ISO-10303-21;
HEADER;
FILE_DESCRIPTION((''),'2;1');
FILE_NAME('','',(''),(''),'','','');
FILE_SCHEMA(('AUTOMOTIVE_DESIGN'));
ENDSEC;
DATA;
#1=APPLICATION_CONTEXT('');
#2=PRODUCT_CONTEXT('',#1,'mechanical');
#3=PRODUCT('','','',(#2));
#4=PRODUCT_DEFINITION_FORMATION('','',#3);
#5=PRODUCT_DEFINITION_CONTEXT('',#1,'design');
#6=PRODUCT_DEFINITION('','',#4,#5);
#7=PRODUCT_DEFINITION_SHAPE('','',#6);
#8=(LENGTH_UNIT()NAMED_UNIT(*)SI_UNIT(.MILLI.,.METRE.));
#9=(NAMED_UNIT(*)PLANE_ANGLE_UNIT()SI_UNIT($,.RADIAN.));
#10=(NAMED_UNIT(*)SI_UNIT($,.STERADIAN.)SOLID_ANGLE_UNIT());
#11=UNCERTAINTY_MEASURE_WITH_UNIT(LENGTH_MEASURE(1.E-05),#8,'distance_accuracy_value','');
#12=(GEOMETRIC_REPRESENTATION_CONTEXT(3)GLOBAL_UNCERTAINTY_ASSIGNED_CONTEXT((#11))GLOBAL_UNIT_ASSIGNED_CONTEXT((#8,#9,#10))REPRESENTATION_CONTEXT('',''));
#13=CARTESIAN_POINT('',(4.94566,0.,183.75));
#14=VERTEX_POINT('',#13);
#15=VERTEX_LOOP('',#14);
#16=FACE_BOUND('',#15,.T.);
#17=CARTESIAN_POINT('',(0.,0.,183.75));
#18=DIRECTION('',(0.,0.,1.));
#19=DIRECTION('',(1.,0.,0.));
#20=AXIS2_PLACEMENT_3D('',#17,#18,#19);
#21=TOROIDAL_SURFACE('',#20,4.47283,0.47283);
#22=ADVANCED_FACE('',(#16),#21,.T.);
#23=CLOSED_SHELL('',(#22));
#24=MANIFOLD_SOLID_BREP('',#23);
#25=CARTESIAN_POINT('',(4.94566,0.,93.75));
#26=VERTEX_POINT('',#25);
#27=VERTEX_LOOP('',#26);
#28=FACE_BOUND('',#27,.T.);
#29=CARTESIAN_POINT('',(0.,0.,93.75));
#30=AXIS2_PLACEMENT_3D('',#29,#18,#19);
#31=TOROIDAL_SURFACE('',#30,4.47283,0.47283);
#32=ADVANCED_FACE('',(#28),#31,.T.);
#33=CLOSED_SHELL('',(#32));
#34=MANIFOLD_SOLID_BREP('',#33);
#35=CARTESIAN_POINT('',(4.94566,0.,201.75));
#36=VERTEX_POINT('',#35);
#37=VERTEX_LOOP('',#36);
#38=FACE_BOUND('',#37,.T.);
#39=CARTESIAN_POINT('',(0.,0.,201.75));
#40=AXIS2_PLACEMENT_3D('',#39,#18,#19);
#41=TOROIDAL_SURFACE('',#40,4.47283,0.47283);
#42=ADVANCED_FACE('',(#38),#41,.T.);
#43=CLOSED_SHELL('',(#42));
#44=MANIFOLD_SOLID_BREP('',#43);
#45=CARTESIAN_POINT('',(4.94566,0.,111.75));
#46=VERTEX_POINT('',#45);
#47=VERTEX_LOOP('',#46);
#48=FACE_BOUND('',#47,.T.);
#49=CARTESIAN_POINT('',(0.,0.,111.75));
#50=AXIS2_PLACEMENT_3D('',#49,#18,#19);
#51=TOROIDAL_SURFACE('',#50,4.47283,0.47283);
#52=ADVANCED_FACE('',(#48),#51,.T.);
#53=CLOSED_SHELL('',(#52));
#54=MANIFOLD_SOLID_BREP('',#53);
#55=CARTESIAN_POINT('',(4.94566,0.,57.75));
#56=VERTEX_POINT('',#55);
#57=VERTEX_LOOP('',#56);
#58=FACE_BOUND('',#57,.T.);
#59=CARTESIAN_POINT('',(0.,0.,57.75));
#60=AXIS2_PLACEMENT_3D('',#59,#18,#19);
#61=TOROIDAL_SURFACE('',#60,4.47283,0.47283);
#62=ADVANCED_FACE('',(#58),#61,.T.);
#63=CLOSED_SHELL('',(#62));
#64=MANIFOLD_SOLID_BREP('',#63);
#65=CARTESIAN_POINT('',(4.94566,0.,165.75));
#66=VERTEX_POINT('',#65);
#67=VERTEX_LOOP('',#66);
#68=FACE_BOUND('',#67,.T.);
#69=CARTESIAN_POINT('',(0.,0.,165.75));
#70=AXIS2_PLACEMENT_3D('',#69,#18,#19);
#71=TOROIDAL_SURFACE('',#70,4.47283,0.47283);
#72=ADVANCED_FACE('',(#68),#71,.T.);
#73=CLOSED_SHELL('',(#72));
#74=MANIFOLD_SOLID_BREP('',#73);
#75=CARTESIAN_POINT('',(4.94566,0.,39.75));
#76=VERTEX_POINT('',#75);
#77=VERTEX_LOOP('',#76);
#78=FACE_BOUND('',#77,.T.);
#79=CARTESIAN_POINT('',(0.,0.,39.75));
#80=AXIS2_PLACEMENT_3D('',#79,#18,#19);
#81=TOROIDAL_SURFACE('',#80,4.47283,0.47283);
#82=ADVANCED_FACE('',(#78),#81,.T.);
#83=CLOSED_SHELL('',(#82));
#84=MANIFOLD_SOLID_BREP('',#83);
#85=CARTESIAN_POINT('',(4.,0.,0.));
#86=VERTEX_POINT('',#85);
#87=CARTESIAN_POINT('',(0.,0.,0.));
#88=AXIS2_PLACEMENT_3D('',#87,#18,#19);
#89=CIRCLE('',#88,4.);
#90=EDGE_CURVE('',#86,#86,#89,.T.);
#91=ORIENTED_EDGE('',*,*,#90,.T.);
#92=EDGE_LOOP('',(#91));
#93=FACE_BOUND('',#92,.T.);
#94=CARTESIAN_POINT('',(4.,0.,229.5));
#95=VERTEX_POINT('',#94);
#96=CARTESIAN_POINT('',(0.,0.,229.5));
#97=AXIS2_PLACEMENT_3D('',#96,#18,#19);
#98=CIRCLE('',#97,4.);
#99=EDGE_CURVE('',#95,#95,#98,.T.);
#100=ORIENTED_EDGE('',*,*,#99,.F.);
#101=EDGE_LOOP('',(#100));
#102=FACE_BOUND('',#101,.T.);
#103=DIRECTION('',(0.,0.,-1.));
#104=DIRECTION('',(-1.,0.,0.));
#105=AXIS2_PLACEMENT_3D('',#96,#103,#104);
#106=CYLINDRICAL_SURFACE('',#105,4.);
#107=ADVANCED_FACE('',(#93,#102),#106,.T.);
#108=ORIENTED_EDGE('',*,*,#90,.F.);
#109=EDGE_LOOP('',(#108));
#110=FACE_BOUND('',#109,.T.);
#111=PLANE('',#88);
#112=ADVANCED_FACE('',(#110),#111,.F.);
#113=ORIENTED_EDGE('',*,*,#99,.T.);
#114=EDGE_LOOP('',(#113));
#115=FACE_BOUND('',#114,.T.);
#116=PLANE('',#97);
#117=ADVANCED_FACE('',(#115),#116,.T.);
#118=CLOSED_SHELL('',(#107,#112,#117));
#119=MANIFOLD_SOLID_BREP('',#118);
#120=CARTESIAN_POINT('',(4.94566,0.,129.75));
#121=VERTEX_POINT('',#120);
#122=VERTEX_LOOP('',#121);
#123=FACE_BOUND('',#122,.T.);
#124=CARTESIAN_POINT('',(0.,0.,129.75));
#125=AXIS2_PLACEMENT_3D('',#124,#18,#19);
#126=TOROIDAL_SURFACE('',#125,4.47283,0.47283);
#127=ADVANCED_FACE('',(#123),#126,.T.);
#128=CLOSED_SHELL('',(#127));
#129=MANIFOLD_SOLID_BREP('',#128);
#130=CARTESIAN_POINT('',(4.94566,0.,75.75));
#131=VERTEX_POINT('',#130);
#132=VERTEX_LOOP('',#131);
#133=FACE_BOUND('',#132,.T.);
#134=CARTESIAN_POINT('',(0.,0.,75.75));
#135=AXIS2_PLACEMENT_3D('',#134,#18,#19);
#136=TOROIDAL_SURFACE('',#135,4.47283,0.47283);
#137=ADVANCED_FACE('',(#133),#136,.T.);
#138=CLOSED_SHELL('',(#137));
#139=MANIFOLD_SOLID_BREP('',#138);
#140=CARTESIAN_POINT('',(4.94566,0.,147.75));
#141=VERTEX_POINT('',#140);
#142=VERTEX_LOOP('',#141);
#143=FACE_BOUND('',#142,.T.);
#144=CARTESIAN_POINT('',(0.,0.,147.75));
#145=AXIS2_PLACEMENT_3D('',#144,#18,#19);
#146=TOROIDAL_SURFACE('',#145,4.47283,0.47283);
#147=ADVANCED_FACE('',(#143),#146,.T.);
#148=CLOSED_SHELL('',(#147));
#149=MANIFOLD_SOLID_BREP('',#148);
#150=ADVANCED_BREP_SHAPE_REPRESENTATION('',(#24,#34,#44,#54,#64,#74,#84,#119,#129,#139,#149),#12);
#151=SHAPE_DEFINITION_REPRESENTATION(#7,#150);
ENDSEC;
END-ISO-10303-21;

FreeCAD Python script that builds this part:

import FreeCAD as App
import Part
import Sketcher

V = App.Vector

doc = App.newDocument("Part")
params = doc.addObject("Spreadsheet::Sheet", "Params")
for row, (alias, value) in enumerate([
    ("sketch1_diameter", "8 mm"),
    ("pad1_length", "229.5 mm"),
    ("revolution_angle", "360 deg"),
], start=1):
    params.set(f"A{row}", alias)
    params.set(f"B{row}", "=" + value)
    params.setAlias(f"B{row}", alias)

body = doc.addObject("PartDesign::Body", "Body")

# Sketch on XY plane
sketch1 = body.newObject("Sketcher::SketchObject", "Sketch")
sketch1.AttachmentSupport = (doc.getObject("XY_Plane"), [""])
sketch1.MapMode = "FlatFace"
sketch1.addGeometry(Part.Circle(V(0, 0, 0), V(0, 0, 1), 4), False)
sketch1.addConstraint([
    Sketcher.Constraint("Coincident", 0, 3, -1, 1),
    Sketcher.Constraint("Diameter", 0, 8.0),
])
sketch1.setExpression("Constraints[1]", "Params.sketch1_diameter")
pad1 = body.newObject("PartDesign::Pad", "Pad")
pad1.Profile = sketch1
pad1.setExpression("Length", "Params.pad1_length")
body2 = doc.addObject("PartDesign::Body", "Body001")
body2.AllowCompound = True

# Sketch on XZ plane
sketch2 = body2.newObject("Sketcher::SketchObject", "Sketch001")
sketch2.AttachmentSupport = (doc.getObject("XZ_Plane001"), [""])
sketch2.MapMode = "FlatFace"
sketch2.addGeometry([
    Part.Circle(V(4.47283, 201.75, 0), V(0, 0, 1), 0.47283),  # 0
    Part.Circle(V(4.47283, 183.75, 0), V(0, 0, 1), 0.47283),  # 1
    Part.Circle(V(4.47283, 165.75, 0), V(0, 0, 1), 0.47283),  # 2
    Part.Circle(V(4.47283, 147.75, 0), V(0, 0, 1), 0.47283),  # 3
    Part.Circle(V(4.47283, 129.75, 0), V(0, 0, 1), 0.47283),  # 4
    Part.Circle(V(4.47283, 111.75, 0), V(0, 0, 1), 0.47283),  # 5
    Part.Circle(V(4.47283, 93.75, 0), V(0, 0, 1), 0.47283),  # 6
    Part.Circle(V(4.47283, 75.75, 0), V(0, 0, 1), 0.47283),  # 7
    Part.Circle(V(4.47283, 57.75, 0), V(0, 0, 1), 0.47283),  # 8
    Part.Circle(V(4.47283, 39.75, 0), V(0, 0, 1), 0.47283),  # 9
], False)
sketch2.addConstraint([
    Sketcher.Constraint("Equal", 0, 1),
    Sketcher.Constraint("Equal", 1, 2),
    Sketcher.Constraint("Equal", 2, 3),
    Sketcher.Constraint("Equal", 3, 4),
    Sketcher.Constraint("Equal", 4, 5),
    Sketcher.Constraint("Equal", 5, 6),
    Sketcher.Constraint("Equal", 6, 7),
    Sketcher.Constraint("Equal", 7, 8),
    Sketcher.Constraint("Equal", 8, 9),
    Sketcher.Constraint("Vertical", 0, 3, 1, 3),
    Sketcher.Constraint("Vertical", 1, 3, 2, 3),
    Sketcher.Constraint("Vertical", 2, 3, 3, 3),
    Sketcher.Constraint("Vertical", 3, 3, 4, 3),
    Sketcher.Constraint("Vertical", 4, 3, 5, 3),
    Sketcher.Constraint("Vertical", 5, 3, 6, 3),
    Sketcher.Constraint("Vertical", 6, 3, 7, 3),
    Sketcher.Constraint("Vertical", 7, 3, 8, 3),
    Sketcher.Constraint("Vertical", 8, 3, 9, 3),
    Sketcher.Constraint("DistanceY", 1, 3, 0, 3, 18.0),
    Sketcher.Constraint("DistanceY", 2, 3, 1, 3, 18.0),
    Sketcher.Constraint("DistanceY", 3, 3, 2, 3, 18.0),
    Sketcher.Constraint("DistanceY", 4, 3, 3, 3, 18.0),
    Sketcher.Constraint("DistanceY", 5, 3, 4, 3, 18.0),
    Sketcher.Constraint("DistanceY", 6, 3, 5, 3, 18.0),
    Sketcher.Constraint("DistanceY", 7, 3, 6, 3, 18.0),
    Sketcher.Constraint("DistanceY", 8, 3, 7, 3, 18.0),
    Sketcher.Constraint("DistanceY", 9, 3, 8, 3, 18.0),
    Sketcher.Constraint("Diameter", 0, 0.94566),
    Sketcher.Constraint("DistanceY", -1, 1, 0, 3, 201.75),
    Sketcher.Constraint("DistanceX", -1, 1, 0, 3, 4.47283),
])
revolution = body2.newObject("PartDesign::Revolution", "Revolution")
revolution.Profile = sketch2
revolution.ReferenceAxis = (sketch2, ["V_Axis"])
revolution.setExpression("Angle", "Params.revolution_angle")

doc.recompute()
